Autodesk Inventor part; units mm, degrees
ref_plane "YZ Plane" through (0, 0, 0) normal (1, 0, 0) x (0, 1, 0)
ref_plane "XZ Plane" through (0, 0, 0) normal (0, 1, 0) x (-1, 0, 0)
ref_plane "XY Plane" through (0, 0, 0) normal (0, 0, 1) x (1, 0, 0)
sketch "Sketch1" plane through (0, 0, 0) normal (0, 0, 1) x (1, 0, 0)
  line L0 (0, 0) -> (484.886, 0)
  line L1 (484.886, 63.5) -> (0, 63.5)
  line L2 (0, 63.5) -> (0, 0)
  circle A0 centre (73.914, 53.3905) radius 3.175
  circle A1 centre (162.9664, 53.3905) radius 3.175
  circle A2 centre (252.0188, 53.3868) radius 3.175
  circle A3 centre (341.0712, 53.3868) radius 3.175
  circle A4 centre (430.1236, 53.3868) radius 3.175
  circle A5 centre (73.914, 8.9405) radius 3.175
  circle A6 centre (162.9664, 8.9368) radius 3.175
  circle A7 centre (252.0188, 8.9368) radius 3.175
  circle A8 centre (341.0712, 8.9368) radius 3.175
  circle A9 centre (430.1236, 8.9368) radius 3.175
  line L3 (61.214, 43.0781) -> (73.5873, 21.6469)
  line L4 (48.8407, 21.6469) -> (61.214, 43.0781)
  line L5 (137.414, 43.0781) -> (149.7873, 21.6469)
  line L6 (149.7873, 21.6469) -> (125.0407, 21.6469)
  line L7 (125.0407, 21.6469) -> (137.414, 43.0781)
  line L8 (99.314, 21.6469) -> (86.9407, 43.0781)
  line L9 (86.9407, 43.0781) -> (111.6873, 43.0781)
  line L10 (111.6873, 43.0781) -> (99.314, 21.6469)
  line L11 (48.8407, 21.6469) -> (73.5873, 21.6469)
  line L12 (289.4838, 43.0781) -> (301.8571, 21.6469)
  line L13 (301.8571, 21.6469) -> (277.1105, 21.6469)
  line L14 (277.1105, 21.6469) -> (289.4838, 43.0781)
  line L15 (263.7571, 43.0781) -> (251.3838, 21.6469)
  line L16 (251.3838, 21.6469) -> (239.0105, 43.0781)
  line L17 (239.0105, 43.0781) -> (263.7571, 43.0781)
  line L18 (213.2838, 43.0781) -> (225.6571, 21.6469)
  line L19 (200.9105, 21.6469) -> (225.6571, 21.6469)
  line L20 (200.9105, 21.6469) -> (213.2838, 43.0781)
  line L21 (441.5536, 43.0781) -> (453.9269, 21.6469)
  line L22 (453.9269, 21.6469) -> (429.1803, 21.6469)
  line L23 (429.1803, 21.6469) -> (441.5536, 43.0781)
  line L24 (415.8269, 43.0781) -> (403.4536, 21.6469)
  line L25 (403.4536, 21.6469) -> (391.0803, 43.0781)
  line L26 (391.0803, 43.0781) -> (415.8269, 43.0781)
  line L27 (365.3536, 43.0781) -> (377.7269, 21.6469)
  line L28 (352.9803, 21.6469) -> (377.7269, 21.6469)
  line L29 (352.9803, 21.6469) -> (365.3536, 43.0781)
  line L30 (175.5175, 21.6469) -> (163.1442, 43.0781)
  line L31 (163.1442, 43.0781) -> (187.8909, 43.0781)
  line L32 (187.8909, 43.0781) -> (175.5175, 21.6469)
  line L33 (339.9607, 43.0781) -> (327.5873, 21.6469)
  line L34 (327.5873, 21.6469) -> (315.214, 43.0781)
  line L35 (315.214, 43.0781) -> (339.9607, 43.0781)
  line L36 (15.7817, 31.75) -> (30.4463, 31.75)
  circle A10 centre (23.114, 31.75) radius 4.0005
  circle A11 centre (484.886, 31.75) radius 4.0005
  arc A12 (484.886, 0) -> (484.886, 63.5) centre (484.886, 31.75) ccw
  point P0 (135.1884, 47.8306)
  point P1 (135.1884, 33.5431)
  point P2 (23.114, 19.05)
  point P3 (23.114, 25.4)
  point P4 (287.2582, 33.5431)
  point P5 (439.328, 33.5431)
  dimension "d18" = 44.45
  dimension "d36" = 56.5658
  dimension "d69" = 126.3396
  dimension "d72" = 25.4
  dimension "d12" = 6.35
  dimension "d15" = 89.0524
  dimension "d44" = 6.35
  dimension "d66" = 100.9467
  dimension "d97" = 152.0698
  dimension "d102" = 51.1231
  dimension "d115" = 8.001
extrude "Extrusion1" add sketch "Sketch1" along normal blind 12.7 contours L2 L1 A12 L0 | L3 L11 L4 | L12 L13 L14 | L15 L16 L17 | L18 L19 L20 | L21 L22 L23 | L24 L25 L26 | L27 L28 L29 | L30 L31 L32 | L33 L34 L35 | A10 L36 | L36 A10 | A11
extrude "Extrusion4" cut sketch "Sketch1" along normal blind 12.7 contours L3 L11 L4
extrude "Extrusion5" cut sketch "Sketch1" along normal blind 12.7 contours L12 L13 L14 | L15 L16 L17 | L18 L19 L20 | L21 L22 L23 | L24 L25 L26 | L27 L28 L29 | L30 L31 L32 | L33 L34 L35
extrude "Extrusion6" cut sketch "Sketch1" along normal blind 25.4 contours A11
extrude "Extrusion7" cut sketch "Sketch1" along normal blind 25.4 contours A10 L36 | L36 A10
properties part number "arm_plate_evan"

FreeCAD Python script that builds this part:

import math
import FreeCAD as App
import Part
import Sketcher
Q = App.Units.Quantity


def add_polygon(sketch, points):
    """Adds a closed chain of lines whose ends are joined by coincident constraints."""
    first, n = sketch.GeometryCount, len(points)
    for a, b in zip(points, points[1:] + points[:1]):
        sketch.addGeometry(Part.LineSegment(App.Vector(*a, 0), App.Vector(*b, 0)), False)
    for i in range(n):
        sketch.addConstraint(Sketcher.Constraint("Coincident", first + i, 2, first + (i + 1) % n, 1))

doc = App.newDocument("Part")
params = doc.addObject("Spreadsheet::Sheet", "Params")
for row, (alias, value) in enumerate([
    ("sketch1_diameter", "0.25 in"),
    ("sketch1_radius", "1.25 in"),
    ("sketch1_width", "19.09 in"),
    ("pad1_length", "0.5 in"),
    ("pocket1_length", "0.5 in"),
    ("pocket2_length", "0.5 in"),
    ("sketch4_diameter", "0.315 in"),
    ("pocket3_length", "1 in"),
    ("sketch5_diameter", "0.315 in"),
    ("pocket4_length", "1 in"),
], start=1):
    params.set(f"A{row}", alias)
    params.set(f"B{row}", "=" + value)
    params.setAlias(f"B{row}", alias)

body = doc.addObject("PartDesign::Body", "Body")

sketch1 = doc.addObject("Sketcher::SketchObject", "Sketch")
body.addObject(sketch1)
sketch1.AttachmentSupport = (doc.XY_Plane, [""])
sketch1.MapMode = "FlatFace"
sketch1.addGeometry(Part.LineSegment(App.Vector(0, 63.5, 0), App.Vector(0, 0, 0)), False)
sketch1.addGeometry(Part.LineSegment(App.Vector(0, 0, 0), App.Vector(484.9, 0, 0)), False)
sketch1.addGeometry(Part.ArcOfCircle(Part.Circle(App.Vector(484.9, 31.8, 0), App.Vector(0, 0, 1), 31.8), math.radians(-90), math.radians(90)), False)
sketch1.addGeometry(Part.LineSegment(App.Vector(484.9, 63.5, 0), App.Vector(0, 63.5, 0)), False)
sketch1.addGeometry(Part.Circle(App.Vector(73.9, 8.9, 0), App.Vector(0, 0, 1), 3.2), False)
sketch1.addGeometry(Part.Circle(App.Vector(163, 8.9, 0), App.Vector(0, 0, 1), 3.2), False)
sketch1.addGeometry(Part.Circle(App.Vector(252, 8.9, 0), App.Vector(0, 0, 1), 3.2), False)
sketch1.addGeometry(Part.Circle(App.Vector(341.1, 8.9, 0), App.Vector(0, 0, 1), 3.2), False)
sketch1.addGeometry(Part.Circle(App.Vector(430.1, 8.9, 0), App.Vector(0, 0, 1), 3.2), False)
add_polygon(sketch1, [(111.7, 43.1), (99.3, 21.6), (86.9, 43.1)])
add_polygon(sketch1, [(125, 21.6), (137.4, 43.1), (149.8, 21.6)])
sketch1.addGeometry(Part.Circle(App.Vector(73.9, 53.4, 0), App.Vector(0, 0, 1), 3.2), False)
sketch1.addGeometry(Part.Circle(App.Vector(163, 53.4, 0), App.Vector(0, 0, 1), 3.2), False)
sketch1.addGeometry(Part.Circle(App.Vector(252, 53.4, 0), App.Vector(0, 0, 1), 3.2), False)
sketch1.addGeometry(Part.Circle(App.Vector(341.1, 53.4, 0), App.Vector(0, 0, 1), 3.2), False)
sketch1.addGeometry(Part.Circle(App.Vector(430.1, 53.4, 0), App.Vector(0, 0, 1), 3.2), False)
sketch1.addConstraint(Sketcher.Constraint("Coincident", 0, 2, 1, 1))
sketch1.addConstraint(Sketcher.Constraint("Tangent", 1, 2, 2, 1))
sketch1.addConstraint(Sketcher.Constraint("Tangent", 2, 2, 3, 1))
sketch1.addConstraint(Sketcher.Constraint("Coincident", 3, 2, 0, 1))
sketch1.addConstraint(Sketcher.Constraint("Vertical", 0))
sketch1.addConstraint(Sketcher.Constraint("Horizontal", 1))
sketch1.addConstraint(Sketcher.Constraint("Horizontal", 3))
sketch1.addConstraint(Sketcher.Constraint("Horizontal", 11))
sketch1.addConstraint(Sketcher.Constraint("Horizontal", 14))
sketch1.addConstraint(Sketcher.Constraint("Coincident", 0, 2, -1, 1))
sketch1.addConstraint(Sketcher.Constraint("Equal", 4, 5))
sketch1.addConstraint(Sketcher.Constraint("Equal", 5, 6))
sketch1.addConstraint(Sketcher.Constraint("Equal", 6, 7))
sketch1.addConstraint(Sketcher.Constraint("Equal", 7, 8))
sketch1.addConstraint(Sketcher.Constraint("Equal", 8, 15))
sketch1.addConstraint(Sketcher.Constraint("Equal", 15, 16))
sketch1.addConstraint(Sketcher.Constraint("Equal", 16, 17))
sketch1.addConstraint(Sketcher.Constraint("Equal", 17, 18))
sketch1.addConstraint(Sketcher.Constraint("Equal", 18, 19))
sketch1.addConstraint(Sketcher.Constraint("Parallel", 9, 12))
sketch1.addConstraint(Sketcher.Constraint("Parallel", 10, 13))
sketch1.addConstraint(Sketcher.Constraint("Horizontal", 5, 3, 6, 3))
sketch1.addConstraint(Sketcher.Constraint("Horizontal", 6, 3, 7, 3))
sketch1.addConstraint(Sketcher.Constraint("Horizontal", 7, 3, 8, 3))
sketch1.addConstraint(Sketcher.Constraint("Horizontal", 15, 3, 16, 3))
sketch1.addConstraint(Sketcher.Constraint("Horizontal", 17, 3, 18, 3))
sketch1.addConstraint(Sketcher.Constraint("Horizontal", 18, 3, 19, 3))
sketch1.addConstraint(Sketcher.Constraint("Horizontal", 11, 2, 12, 2))
sketch1.addConstraint(Sketcher.Constraint("Horizontal", 9, 2, 13, 2))
sketch1.addConstraint(Sketcher.Constraint("Vertical", 4, 3, 15, 3))
sketch1.addConstraint(Sketcher.Constraint("Vertical", 5, 3, 16, 3))
sketch1.addConstraint(Sketcher.Constraint("Vertical", 6, 3, 17, 3))
sketch1.addConstraint(Sketcher.Constraint("Vertical", 7, 3, 18, 3))
sketch1.addConstraint(Sketcher.Constraint("Vertical", 8, 3, 19, 3))
sketch1.addConstraint(Sketcher.Constraint("Equal", 9, 10))
sketch1.addConstraint(Sketcher.Constraint("Diameter", 4, Q("0.25 in")))
sketch1.addConstraint(Sketcher.Constraint("DistanceX", 4, 3, 9, 2, Q("1 in")))
sketch1.addConstraint(Sketcher.Constraint("Radius", 2, Q("1.25 in")))
sketch1.addConstraint(Sketcher.Constraint("DistanceY", 4, 3, 15, 3, Q("1.75 in")))
sketch1.addConstraint(Sketcher.Constraint("DistanceY", 6, 3, 17, 3, Q("1.75 in")))
sketch1.addConstraint(Sketcher.Constraint("Angle", 9, Q("-120 deg")))
sketch1.addConstraint(Sketcher.Constraint("DistanceX", 4, 3, 5, 3, Q("3.506 in")))
sketch1.addConstraint(Sketcher.Constraint("DistanceX", 5, 3, 6, 3, Q("3.506 in")))
sketch1.addConstraint(Sketcher.Constraint("DistanceX", 6, 3, 7, 3, Q("3.506 in")))
sketch1.addConstraint(Sketcher.Constraint("DistanceX", 7, 3, 8, 3, Q("3.506 in")))
sketch1.addConstraint(Sketcher.Constraint("DistanceX", 1, 1, 1, 2, Q("19.09 in")))
sketch1.addConstraint(Sketcher.Constraint("DistanceX", 9, 2, 12, 2, Q("1.5 in")))
sketch1.addConstraint(Sketcher.Constraint("DistanceX", -1, 1, 4, 3, Q("2.91 in")))
sketch1.addConstraint(Sketcher.Constraint("DistanceY", -1, 1, 4, 3, Q("0.352 in")))
sketch1.addConstraint(Sketcher.Constraint("DistanceY", -1, 1, 10, 2, Q("1.696 in")))
sketch1.addConstraint(Sketcher.Constraint("DistanceY", 9, 2, 10, 2, Q("0.843748 in")))
sketch1.addConstraint(Sketcher.Constraint("DistanceY", 5, 3, 9, 2, Q("0.5004 in")))
sketch1.setExpression("Constraints[41]", "Params.sketch1_diameter")
sketch1.setExpression("Constraints[43]", "Params.sketch1_radius")
sketch1.setExpression("Constraints[51]", "Params.sketch1_width")
pad1 = doc.addObject("PartDesign::Pad", "Pad")
body.addObject(pad1)
pad1.Profile = sketch1
pad1.setExpression("Length", "Params.pad1_length")

sketch2 = doc.addObject("Sketcher::SketchObject", "Sketch001")
body.addObject(sketch2)
sketch2.AttachmentSupport = (doc.XY_Plane, [""])
sketch2.MapMode = "FlatFace"
add_polygon(sketch2, [(74, 22), (61, 43), (49, 22)])
sketch2.addConstraint(Sketcher.Constraint("Horizontal", 2))
sketch2.addConstraint(Sketcher.Constraint("Equal", 0, 1))
sketch2.addConstraint(Sketcher.Constraint("Angle", 0, Q("120 deg")))
sketch2.addConstraint(Sketcher.Constraint("DistanceX", -1, 1, 0, 2, Q("2.41 in")))
sketch2.addConstraint(Sketcher.Constraint("DistanceY", -1, 1, 0, 2, Q("1.696 in")))
sketch2.addConstraint(Sketcher.Constraint("DistanceY", 1, 2, 0, 2, Q("0.843748 in")))
pocket1 = doc.addObject("PartDesign::Pocket", "Pocket")
body.addObject(pocket1)
pocket1.Profile = sketch2
pocket1.setExpression("Length", "Params.pocket1_length")
pocket1.Reversed = True

sketch3 = doc.addObject("Sketcher::SketchObject", "Sketch002")
body.addObject(sketch3)
sketch3.AttachmentSupport = (doc.XY_Plane, [""])
sketch3.MapMode = "FlatFace"
add_polygon(sketch3, [(302, 22), (289, 43), (277, 22)])
add_polygon(sketch3, [(251, 22), (264, 43), (239, 43)])
add_polygon(sketch3, [(226, 22), (213, 43), (201, 22)])
add_polygon(sketch3, [(454, 22), (442, 43), (429, 22)])
add_polygon(sketch3, [(403, 22), (416, 43), (391, 43)])
add_polygon(sketch3, [(378, 22), (365, 43), (353, 22)])
add_polygon(sketch3, [(163, 43), (176, 22), (188, 43)])
add_polygon(sketch3, [(328, 22), (340, 43), (315, 43)])
sketch3.addConstraint(Sketcher.Constraint("Horizontal", 2))
sketch3.addConstraint(Sketcher.Constraint("Horizontal", 4))
sketch3.addConstraint(Sketcher.Constraint("Horizontal", 8))
sketch3.addConstraint(Sketcher.Constraint("Horizontal", 11))
sketch3.addConstraint(Sketcher.Constraint("Horizontal", 13))
sketch3.addConstraint(Sketcher.Constraint("Horizontal", 17))
sketch3.addConstraint(Sketcher.Constraint("Horizontal", 20))
sketch3.addConstraint(Sketcher.Constraint("Horizontal", 22))
sketch3.addConstraint(Sketcher.Constraint("Parallel", 1, 3))
sketch3.addConstraint(Sketcher.Constraint("Parallel", 0, 5))
sketch3.addConstraint(Sketcher.Constraint("Parallel", 5, 6))
sketch3.addConstraint(Sketcher.Constraint("Parallel", 3, 7))
sketch3.addConstraint(Sketcher.Constraint("Parallel", 6, 9))
sketch3.addConstraint(Sketcher.Constraint("Parallel", 7, 10))
sketch3.addConstraint(Sketcher.Constraint("Parallel", 10, 12))
sketch3.addConstraint(Sketcher.Constraint("Parallel", 9, 14))
sketch3.addConstraint(Sketcher.Constraint("Parallel", 14, 15))
sketch3.addConstraint(Sketcher.Constraint("Parallel", 12, 16))
sketch3.addConstraint(Sketcher.Constraint("Parallel", 15, 18))
sketch3.addConstraint(Sketcher.Constraint("Parallel", 16, 19))
sketch3.addConstraint(Sketcher.Constraint("Parallel", 19, 21))
sketch3.addConstraint(Sketcher.Constraint("Parallel", 18, 23))
sketch3.addConstraint(Sketcher.Constraint("Horizontal", 0, 2, 3, 2))
sketch3.addConstraint(Sketcher.Constraint("Horizontal", 2, 2, 5, 2))
sketch3.addConstraint(Sketcher.Constraint("Horizontal", 4, 2, 6, 2))
sketch3.addConstraint(Sketcher.Constraint("Horizontal", 5, 2, 7, 2))
sketch3.addConstraint(Sketcher.Constraint("Horizontal", 6, 2, 9, 2))
sketch3.addConstraint(Sketcher.Constraint("Horizontal", 8, 2, 10, 2))
sketch3.addConstraint(Sketcher.Constraint("Horizontal", 9, 2, 12, 2))
sketch3.addConstraint(Sketcher.Constraint("Horizontal", 11, 2, 14, 2))
sketch3.addConstraint(Sketcher.Constraint("Horizontal", 13, 2, 15, 2))
sketch3.addConstraint(Sketcher.Constraint("Horizontal", 14, 2, 16, 2))
sketch3.addConstraint(Sketcher.Constraint("Horizontal", 17, 2, 18, 2))
sketch3.addConstraint(Sketcher.Constraint("Horizontal", 15, 2, 19, 2))
sketch3.addConstraint(Sketcher.Constraint("Horizontal", 20, 2, 21, 2))
sketch3.addConstraint(Sketcher.Constraint("Horizontal", 18, 2, 23, 2))
sketch3.addConstraint(Sketcher.Constraint("Equal", 0, 1))
sketch3.addConstraint(Sketcher.Constraint("Angle", 0, Q("120 deg")))
sketch3.addConstraint(Sketcher.Constraint("DistanceX", 6, 2, 0, 2, Q("3 in")))
sketch3.addConstraint(Sketcher.Constraint("DistanceX", 0, 2, 9, 2, Q("5.987 in")))
sketch3.addConstraint(Sketcher.Constraint("DistanceX", 3, 2, 2, 2, Q("1.5 in")))
sketch3.addConstraint(Sketcher.Constraint("DistanceX", 12, 2, 11, 2, Q("1.5 in")))
sketch3.addConstraint(Sketcher.Constraint("DistanceX", 15, 2, 14, 2, Q("1.5 in")))
sketch3.addConstraint(Sketcher.Constraint("DistanceX", -1, 1, 22, 2, Q("12.41 in")))
sketch3.addConstraint(Sketcher.Constraint("DistanceX", 2, 2, 16, 2, 51.1232))
sketch3.addConstraint(Sketcher.Constraint("DistanceX", -1, 1, 0, 2, Q("11.397 in")))
sketch3.addConstraint(Sketcher.Constraint("DistanceY", -1, 1, 0, 2, Q("1.696 in")))
sketch3.addConstraint(Sketcher.Constraint("DistanceX", -1, 1, 20, 2, Q("6.423 in")))
pocket2 = doc.addObject("PartDesign::Pocket", "Pocket001")
body.addObject(pocket2)
pocket2.Profile = sketch3
pocket2.setExpression("Length", "Params.pocket2_length")
pocket2.Reversed = True

sketch4 = doc.addObject("Sketcher::SketchObject", "Sketch003")
body.addObject(sketch4)
sketch4.AttachmentSupport = (doc.XY_Plane, [""])
sketch4.MapMode = "FlatFace"
sketch4.addGeometry(Part.Circle(App.Vector(484.9, 31.8, 0), App.Vector(0, 0, 1), 4), False)
sketch4.addConstraint(Sketcher.Constraint("Diameter", 0, Q("0.315 in")))
sketch4.addConstraint(Sketcher.Constraint("DistanceX", -1, 1, 0, 3, Q("19.09 in")))
sketch4.addConstraint(Sketcher.Constraint("DistanceY", -1, 1, 0, 3, Q("1.25 in")))
sketch4.setExpression("Constraints[0]", "Params.sketch4_diameter")
pocket3 = doc.addObject("PartDesign::Pocket", "Pocket002")
body.addObject(pocket3)
pocket3.Profile = sketch4
pocket3.setExpression("Length", "Params.pocket3_length")
pocket3.Reversed = True

sketch5 = doc.addObject("Sketcher::SketchObject", "Sketch004")
body.addObject(sketch5)
sketch5.AttachmentSupport = (doc.XY_Plane, [""])
sketch5.MapMode = "FlatFace"
sketch5.addGeometry(Part.Circle(App.Vector(23.1, 31.8, 0), App.Vector(0, 0, 1), 4), False)
sketch5.addConstraint(Sketcher.Constraint("Diameter", 0, Q("0.315 in")))
sketch5.addConstraint(Sketcher.Constraint("DistanceX", -1, 1, 0, 3, Q("0.91 in")))
sketch5.addConstraint(Sketcher.Constraint("DistanceY", -1, 1, 0, 3, Q("1.25 in")))
sketch5.setExpression("Constraints[0]", "Params.sketch5_diameter")
pocket4 = doc.addObject("PartDesign::Pocket", "Pocket003")
body.addObject(pocket4)
pocket4.Profile = sketch5
pocket4.setExpression("Length", "Params.pocket4_length")
pocket4.Reversed = True

doc.recompute()
